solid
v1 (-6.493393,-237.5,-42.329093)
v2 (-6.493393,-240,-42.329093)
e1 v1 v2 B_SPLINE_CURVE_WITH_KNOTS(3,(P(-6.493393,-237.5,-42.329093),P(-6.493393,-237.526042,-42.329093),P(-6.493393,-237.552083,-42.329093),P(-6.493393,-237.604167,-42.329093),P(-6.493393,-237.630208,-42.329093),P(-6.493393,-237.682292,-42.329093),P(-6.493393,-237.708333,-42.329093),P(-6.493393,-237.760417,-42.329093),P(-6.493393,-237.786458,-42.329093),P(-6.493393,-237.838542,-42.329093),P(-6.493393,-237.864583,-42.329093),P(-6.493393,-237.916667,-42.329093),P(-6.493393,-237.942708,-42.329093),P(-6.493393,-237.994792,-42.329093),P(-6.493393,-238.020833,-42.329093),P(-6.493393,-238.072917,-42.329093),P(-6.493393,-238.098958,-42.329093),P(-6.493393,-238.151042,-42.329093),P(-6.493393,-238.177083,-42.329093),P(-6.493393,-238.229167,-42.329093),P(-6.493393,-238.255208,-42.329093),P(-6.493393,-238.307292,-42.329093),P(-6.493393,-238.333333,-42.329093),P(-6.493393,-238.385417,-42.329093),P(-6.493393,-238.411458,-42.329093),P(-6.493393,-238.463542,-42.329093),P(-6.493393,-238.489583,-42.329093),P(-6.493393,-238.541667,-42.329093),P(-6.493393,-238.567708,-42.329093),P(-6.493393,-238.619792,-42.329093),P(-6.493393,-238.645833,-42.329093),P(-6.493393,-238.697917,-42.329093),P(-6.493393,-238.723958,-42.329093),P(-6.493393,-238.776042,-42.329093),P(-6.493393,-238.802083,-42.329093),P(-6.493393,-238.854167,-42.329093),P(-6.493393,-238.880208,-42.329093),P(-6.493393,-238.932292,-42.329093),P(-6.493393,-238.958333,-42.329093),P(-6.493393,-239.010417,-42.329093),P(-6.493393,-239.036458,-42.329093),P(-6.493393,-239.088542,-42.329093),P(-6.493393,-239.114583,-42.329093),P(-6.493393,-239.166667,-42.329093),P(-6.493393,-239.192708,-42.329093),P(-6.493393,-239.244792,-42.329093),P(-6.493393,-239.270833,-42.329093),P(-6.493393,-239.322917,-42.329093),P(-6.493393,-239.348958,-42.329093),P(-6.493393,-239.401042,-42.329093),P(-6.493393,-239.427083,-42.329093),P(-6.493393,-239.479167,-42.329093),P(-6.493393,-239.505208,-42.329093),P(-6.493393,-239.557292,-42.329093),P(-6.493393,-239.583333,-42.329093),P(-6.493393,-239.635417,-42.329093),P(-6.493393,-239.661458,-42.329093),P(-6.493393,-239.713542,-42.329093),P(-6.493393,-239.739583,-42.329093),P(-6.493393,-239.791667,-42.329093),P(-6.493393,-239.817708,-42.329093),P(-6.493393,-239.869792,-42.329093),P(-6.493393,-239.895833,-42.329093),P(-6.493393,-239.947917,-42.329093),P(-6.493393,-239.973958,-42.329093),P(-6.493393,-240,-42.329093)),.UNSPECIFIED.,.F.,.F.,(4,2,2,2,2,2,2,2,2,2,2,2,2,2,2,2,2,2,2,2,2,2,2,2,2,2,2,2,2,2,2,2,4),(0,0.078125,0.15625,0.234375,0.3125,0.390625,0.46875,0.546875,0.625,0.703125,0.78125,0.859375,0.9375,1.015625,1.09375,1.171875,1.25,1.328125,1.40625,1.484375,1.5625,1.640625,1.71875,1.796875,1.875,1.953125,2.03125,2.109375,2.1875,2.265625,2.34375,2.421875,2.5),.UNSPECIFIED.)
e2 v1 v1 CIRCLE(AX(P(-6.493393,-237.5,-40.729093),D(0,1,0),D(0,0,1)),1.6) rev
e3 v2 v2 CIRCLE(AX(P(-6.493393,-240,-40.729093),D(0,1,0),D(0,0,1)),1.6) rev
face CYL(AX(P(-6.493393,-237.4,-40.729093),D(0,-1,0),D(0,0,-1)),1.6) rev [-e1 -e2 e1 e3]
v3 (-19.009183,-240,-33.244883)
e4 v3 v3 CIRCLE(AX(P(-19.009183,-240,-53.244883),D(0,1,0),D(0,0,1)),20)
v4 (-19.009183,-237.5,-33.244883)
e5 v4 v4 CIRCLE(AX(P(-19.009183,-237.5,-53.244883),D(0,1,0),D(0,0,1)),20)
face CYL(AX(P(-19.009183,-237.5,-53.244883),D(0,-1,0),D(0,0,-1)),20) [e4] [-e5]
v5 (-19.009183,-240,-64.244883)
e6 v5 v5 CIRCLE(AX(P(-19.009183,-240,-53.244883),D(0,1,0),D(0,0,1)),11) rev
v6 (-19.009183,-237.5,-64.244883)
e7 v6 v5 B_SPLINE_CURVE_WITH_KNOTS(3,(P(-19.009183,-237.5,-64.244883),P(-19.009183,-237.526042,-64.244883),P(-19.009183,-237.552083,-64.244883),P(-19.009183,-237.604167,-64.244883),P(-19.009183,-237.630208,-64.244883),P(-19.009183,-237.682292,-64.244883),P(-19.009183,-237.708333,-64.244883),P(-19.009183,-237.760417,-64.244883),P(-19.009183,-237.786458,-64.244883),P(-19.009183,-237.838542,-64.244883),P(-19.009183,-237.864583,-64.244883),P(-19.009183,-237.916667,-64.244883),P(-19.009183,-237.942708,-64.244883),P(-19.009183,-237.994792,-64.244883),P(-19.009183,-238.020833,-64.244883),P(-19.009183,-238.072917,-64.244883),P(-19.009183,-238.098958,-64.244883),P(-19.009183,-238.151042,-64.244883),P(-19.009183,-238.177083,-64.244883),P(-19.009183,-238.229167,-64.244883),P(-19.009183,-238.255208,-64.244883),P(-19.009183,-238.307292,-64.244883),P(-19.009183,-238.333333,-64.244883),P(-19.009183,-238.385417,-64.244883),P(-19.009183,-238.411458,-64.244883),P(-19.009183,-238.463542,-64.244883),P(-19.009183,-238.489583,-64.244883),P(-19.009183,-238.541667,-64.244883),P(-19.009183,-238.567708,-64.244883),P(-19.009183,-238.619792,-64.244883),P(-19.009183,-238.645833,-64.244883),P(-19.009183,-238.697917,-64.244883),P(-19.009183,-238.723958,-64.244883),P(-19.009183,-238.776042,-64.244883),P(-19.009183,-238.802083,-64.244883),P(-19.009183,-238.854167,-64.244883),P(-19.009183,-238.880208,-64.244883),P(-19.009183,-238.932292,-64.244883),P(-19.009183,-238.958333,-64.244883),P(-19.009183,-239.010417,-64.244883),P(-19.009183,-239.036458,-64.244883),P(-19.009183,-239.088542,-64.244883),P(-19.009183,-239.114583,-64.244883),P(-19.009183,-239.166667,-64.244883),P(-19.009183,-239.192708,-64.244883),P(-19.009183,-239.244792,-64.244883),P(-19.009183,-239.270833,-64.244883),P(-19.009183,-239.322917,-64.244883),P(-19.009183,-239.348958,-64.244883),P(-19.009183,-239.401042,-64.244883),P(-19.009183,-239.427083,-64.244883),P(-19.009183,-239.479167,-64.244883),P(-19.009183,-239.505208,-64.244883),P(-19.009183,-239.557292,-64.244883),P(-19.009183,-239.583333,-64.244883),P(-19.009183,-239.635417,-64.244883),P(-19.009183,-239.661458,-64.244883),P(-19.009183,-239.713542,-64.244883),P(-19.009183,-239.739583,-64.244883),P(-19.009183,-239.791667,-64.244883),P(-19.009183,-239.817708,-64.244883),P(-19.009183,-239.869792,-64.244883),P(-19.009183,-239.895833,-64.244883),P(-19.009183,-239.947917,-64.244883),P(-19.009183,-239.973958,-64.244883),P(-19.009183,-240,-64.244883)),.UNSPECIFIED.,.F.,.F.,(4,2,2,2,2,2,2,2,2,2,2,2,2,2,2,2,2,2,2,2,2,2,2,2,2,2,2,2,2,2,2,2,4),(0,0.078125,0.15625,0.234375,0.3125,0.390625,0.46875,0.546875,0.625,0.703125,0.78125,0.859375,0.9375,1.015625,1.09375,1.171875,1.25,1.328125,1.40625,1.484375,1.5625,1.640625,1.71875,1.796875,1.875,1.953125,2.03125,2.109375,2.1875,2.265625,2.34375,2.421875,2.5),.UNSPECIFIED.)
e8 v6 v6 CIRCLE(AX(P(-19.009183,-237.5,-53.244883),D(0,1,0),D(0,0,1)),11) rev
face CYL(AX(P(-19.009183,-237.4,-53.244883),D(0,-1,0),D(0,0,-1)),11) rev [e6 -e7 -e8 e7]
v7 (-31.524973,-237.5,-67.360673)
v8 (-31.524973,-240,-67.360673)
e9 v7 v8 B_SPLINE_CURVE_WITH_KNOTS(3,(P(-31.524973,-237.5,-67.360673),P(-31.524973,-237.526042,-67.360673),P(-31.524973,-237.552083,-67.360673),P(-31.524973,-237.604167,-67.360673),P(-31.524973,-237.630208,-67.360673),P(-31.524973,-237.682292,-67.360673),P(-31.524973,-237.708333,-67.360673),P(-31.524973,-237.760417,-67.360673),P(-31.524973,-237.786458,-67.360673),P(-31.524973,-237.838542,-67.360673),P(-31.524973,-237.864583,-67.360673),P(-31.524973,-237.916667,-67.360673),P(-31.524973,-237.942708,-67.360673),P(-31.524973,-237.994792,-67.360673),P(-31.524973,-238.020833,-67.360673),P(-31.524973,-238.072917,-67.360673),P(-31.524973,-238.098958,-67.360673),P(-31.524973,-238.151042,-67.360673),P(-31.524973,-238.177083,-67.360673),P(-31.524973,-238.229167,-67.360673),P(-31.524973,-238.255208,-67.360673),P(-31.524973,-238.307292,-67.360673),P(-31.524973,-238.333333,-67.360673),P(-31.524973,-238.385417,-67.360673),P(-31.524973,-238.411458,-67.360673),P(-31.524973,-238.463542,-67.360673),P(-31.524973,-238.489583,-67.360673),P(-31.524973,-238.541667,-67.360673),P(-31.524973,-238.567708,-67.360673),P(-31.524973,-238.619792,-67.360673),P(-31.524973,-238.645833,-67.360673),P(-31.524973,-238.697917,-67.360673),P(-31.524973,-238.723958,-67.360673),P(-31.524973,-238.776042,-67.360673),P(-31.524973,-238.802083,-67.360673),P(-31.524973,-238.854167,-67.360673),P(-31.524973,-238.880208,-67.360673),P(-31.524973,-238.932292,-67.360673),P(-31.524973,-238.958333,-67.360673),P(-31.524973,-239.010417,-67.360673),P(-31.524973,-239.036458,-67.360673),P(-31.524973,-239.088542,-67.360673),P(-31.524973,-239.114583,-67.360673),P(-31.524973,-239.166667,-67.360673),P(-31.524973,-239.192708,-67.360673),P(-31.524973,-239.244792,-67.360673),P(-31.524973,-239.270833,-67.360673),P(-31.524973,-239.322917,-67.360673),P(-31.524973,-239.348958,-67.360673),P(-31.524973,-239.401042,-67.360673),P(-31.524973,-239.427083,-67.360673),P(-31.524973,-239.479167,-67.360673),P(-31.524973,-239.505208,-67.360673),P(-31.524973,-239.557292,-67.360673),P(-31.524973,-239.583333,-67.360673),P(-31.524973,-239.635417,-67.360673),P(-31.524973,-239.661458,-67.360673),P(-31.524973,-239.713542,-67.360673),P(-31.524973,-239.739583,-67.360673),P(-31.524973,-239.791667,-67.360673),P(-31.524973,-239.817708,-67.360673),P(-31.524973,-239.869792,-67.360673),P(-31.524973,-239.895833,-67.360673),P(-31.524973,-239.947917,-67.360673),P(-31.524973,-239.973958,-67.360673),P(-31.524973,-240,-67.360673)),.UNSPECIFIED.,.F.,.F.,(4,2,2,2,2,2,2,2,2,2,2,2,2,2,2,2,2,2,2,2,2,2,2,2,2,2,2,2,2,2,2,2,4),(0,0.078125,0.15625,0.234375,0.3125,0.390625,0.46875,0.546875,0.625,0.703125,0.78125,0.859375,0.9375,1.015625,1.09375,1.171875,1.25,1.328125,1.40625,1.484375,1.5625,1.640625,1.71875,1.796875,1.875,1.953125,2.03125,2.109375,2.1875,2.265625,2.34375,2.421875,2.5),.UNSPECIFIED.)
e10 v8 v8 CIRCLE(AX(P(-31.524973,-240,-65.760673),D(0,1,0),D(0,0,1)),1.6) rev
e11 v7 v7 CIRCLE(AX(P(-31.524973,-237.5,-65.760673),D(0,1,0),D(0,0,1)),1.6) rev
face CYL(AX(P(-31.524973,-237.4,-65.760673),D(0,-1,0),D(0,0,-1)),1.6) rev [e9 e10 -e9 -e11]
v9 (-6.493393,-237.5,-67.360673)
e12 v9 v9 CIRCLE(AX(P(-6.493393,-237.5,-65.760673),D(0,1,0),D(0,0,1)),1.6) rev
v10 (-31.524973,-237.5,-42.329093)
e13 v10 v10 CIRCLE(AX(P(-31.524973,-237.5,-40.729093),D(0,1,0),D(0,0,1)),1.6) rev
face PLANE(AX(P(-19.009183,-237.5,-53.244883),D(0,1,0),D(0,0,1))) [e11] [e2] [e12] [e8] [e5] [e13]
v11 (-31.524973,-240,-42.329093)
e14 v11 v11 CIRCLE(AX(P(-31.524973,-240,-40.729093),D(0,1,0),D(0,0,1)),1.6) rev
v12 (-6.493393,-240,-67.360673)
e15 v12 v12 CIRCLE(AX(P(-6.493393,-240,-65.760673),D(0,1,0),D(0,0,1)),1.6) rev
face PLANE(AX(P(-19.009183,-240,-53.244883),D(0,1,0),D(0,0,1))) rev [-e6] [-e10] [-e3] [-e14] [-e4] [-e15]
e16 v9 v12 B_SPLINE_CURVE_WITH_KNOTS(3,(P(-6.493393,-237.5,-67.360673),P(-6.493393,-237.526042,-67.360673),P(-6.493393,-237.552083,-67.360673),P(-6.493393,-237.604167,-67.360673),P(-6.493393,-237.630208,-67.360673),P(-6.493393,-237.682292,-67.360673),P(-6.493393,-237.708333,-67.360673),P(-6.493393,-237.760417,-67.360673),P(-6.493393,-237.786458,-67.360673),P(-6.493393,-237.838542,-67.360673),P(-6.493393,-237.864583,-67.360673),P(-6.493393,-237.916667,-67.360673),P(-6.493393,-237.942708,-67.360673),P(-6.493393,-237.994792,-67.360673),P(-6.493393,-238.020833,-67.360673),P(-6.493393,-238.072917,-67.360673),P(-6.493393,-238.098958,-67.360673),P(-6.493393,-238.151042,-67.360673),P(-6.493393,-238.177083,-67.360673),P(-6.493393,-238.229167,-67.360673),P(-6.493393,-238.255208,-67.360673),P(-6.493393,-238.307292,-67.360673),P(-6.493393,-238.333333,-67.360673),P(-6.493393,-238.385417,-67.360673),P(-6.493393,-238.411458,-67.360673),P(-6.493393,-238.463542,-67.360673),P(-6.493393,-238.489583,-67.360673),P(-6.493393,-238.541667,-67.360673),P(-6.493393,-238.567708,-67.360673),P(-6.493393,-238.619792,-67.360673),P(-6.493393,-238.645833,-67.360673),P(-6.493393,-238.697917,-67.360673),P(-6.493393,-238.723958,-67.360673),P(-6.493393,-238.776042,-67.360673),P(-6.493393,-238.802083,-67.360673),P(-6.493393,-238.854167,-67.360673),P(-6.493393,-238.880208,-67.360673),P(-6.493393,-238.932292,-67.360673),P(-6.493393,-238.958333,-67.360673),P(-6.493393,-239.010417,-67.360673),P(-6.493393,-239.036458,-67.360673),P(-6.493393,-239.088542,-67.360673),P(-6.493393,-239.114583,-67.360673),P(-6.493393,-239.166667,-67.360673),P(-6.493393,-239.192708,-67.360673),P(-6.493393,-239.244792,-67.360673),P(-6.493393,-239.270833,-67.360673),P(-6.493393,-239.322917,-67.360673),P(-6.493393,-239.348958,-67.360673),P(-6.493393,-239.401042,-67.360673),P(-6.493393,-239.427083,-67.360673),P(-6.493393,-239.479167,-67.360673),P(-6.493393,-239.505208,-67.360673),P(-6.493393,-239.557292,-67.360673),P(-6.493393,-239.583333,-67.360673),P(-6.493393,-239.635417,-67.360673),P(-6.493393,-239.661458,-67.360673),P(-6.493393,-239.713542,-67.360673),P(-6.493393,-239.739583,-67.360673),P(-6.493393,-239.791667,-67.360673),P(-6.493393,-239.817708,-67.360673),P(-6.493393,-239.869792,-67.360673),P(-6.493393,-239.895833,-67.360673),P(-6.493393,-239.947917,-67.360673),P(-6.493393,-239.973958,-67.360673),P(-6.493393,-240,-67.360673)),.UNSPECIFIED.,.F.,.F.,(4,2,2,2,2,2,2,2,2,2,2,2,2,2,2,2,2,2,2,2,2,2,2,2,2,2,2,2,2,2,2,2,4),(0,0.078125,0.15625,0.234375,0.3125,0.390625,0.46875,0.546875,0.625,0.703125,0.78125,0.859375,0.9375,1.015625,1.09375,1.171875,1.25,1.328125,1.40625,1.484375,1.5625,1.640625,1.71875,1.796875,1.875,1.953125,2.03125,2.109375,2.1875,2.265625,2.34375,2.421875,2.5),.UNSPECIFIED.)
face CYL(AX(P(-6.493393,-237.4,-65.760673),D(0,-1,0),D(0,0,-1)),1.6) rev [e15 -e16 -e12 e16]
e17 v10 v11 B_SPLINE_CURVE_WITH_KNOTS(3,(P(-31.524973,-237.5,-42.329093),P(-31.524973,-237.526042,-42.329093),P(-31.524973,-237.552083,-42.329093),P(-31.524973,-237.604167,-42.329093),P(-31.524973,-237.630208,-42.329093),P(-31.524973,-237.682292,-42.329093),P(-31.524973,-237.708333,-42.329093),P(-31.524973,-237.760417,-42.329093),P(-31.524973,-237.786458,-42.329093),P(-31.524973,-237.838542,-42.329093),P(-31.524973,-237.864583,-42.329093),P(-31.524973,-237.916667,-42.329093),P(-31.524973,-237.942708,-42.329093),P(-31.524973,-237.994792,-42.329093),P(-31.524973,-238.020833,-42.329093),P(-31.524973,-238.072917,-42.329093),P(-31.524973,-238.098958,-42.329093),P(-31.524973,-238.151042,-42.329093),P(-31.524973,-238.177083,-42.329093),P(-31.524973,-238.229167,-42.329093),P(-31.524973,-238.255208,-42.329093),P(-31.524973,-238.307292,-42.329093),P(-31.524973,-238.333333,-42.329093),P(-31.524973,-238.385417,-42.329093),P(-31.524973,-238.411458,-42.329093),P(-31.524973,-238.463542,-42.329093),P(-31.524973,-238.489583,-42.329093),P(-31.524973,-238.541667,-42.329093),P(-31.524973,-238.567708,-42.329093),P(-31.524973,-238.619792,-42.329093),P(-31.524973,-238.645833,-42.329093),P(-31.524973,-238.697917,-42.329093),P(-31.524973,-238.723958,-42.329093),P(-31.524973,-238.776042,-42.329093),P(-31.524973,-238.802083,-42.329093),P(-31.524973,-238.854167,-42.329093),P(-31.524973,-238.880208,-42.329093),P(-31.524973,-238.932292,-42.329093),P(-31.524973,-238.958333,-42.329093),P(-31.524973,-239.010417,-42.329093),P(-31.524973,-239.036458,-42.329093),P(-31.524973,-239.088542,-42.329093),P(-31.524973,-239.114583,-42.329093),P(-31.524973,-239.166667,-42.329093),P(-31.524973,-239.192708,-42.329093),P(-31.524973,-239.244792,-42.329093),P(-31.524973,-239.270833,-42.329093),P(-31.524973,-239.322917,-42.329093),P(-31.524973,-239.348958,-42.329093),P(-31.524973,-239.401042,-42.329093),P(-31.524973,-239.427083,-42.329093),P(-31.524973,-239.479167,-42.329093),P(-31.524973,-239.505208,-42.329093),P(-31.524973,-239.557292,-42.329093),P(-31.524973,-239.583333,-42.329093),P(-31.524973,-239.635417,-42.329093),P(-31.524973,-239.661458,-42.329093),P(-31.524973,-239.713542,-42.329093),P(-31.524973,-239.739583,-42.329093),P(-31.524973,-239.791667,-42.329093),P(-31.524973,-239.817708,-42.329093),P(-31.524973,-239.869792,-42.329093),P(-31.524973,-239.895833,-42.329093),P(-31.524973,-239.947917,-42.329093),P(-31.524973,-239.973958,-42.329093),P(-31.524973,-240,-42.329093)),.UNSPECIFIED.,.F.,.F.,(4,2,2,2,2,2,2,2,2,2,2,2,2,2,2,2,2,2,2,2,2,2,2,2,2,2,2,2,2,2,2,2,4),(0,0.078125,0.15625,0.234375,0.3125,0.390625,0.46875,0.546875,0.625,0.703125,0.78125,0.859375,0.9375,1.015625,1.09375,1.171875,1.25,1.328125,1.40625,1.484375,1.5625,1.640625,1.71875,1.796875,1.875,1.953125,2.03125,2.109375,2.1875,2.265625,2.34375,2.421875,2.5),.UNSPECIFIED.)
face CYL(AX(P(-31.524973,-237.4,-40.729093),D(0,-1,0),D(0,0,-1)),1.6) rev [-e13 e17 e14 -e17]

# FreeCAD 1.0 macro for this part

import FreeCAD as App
import Part
import Sketcher

V = App.Vector
Q = App.Units.Quantity

doc = App.newDocument("Part")
body = doc.addObject("PartDesign::Body", "Body")

sketch1 = doc.addObject("Sketcher::SketchObject", "Sketch")
body.addObject(sketch1)
sketch1.AttachmentSupport = (doc.XZ_Plane, [""])
sketch1.MapMode = "FlatFace"
sketch1.AttachmentOffset = App.Placement(V(0, 0, 240), App.Rotation())
sketch1.addGeometry(Part.Circle(V(-19.009183, -53.244883, 0), V(0, 0, 1), 20), False)
sketch1.addConstraint(Sketcher.Constraint("Diameter", 0, Q("40 mm")))
sketch1.addConstraint(Sketcher.Constraint("DistanceX", 0, 3, -1, 1, Q("19.009183 mm")))
sketch1.addConstraint(Sketcher.Constraint("DistanceY", 0, 3, -1, 1, Q("53.244883 mm")))
pad1 = doc.addObject("PartDesign::Pad", "Pad")
body.addObject(pad1)
pad1.Profile = sketch1
pad1.Length = 2.5
pad1.Reversed = True

sketch2 = doc.addObject("Sketcher::SketchObject", "Sketch001")
body.addObject(sketch2)
sketch2.AttachmentSupport = (doc.XZ_Plane, [""])
sketch2.MapMode = "FlatFace"
sketch2.AttachmentOffset = App.Placement(V(0, 0, 240.1), App.Rotation())
sketch2.addGeometry(Part.Circle(V(-19.009183, -53.244883, 0), V(0, 0, 1), 11), False)
sketch2.addConstraint(Sketcher.Constraint("Diameter", 0, Q("22 mm")))
sketch2.addConstraint(Sketcher.Constraint("DistanceX", 0, 3, -1, 1, Q("19.009183 mm")))
sketch2.addConstraint(Sketcher.Constraint("DistanceY", 0, 3, -1, 1, Q("53.244883 mm")))
pocket1 = doc.addObject("PartDesign::Pocket", "Pocket")
body.addObject(pocket1)
pocket1.Profile = sketch2
pocket1.Length = 2.7

sketch3 = doc.addObject("Sketcher::SketchObject", "Sketch002")
body.addObject(sketch3)
sketch3.AttachmentSupport = (doc.XZ_Plane, [""])
sketch3.MapMode = "FlatFace"
sketch3.AttachmentOffset = App.Placement(V(0, 0, 240.1), App.Rotation())
sketch3.addGeometry(Part.Circle(V(-6.493393, -40.729093, 0), V(0, 0, 1), 1.6), False)
sketch3.addGeometry(Part.Circle(V(-31.524973, -40.729093, 0), V(0, 0, 1), 1.6), False)
sketch3.addGeometry(Part.Circle(V(-31.524973, -65.760673, 0), V(0, 0, 1), 1.6), False)
sketch3.addGeometry(Part.Circle(V(-6.493393, -65.760673, 0), V(0, 0, 1), 1.6), False)
sketch3.addConstraint(Sketcher.Constraint("Equal", 0, 1))
sketch3.addConstraint(Sketcher.Constraint("Equal", 1, 2))
sketch3.addConstraint(Sketcher.Constraint("Equal", 2, 3))
sketch3.addConstraint(Sketcher.Constraint("Horizontal", 0, 3, 1, 3))
sketch3.addConstraint(Sketcher.Constraint("Horizontal", 2, 3, 3, 3))
sketch3.addConstraint(Sketcher.Constraint("Vertical", 1, 3, 2, 3))
sketch3.addConstraint(Sketcher.Constraint("Vertical", 0, 3, 3, 3))
sketch3.addConstraint(Sketcher.Constraint("Diameter", 0, Q("3.2 mm")))
sketch3.addConstraint(Sketcher.Constraint("DistanceX", 1, 3, 0, 3, Q("25.03158 mm")))
sketch3.addConstraint(Sketcher.Constraint("DistanceY", 2, 3, 1, 3, Q("25.03158 mm")))
sketch3.addConstraint(Sketcher.Constraint("DistanceX", 0, 3, -1, 1, Q("6.493393 mm")))
sketch3.addConstraint(Sketcher.Constraint("DistanceY", 0, 3, -1, 1, Q("40.729093 mm")))
pocket2 = doc.addObject("PartDesign::Pocket", "Pocket001")
body.addObject(pocket2)
pocket2.Profile = sketch3
pocket2.Length = 2.7

doc.recompute()
